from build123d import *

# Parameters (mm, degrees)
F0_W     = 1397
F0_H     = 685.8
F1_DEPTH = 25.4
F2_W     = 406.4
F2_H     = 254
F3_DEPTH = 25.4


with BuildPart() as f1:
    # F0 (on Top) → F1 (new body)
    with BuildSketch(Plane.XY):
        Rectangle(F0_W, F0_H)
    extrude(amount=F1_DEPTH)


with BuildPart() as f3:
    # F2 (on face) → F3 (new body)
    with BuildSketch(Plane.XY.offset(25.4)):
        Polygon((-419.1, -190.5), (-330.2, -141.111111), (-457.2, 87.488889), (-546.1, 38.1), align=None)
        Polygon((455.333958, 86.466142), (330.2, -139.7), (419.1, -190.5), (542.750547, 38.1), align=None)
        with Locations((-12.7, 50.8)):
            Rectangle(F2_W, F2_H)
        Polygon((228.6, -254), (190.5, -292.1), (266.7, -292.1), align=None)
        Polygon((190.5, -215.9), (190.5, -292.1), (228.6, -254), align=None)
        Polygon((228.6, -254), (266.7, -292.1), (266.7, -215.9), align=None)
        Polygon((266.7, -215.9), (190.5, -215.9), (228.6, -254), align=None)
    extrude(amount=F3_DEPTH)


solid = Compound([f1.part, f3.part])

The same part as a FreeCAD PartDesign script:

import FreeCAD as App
import Part
import Sketcher

V = App.Vector
Q = App.Units.Quantity


def add_polygon(sketch, points):
    """Adds a closed chain of lines whose ends are joined by coincident constraints."""
    first, n = sketch.GeometryCount, len(points)
    for a, b in zip(points, points[1:] + points[:1]):
        sketch.addGeometry(Part.LineSegment(App.Vector(*a, 0), App.Vector(*b, 0)), False)
    for i in range(n):
        sketch.addConstraint(Sketcher.Constraint("Coincident", first + i, 2, first + (i + 1) % n, 1))

doc = App.newDocument("Part")
body = doc.addObject("PartDesign::Body", "Body")

# Sketch on XY plane
sketch1 = body.newObject("Sketcher::SketchObject", "Sketch")
sketch1.AttachmentSupport = (doc.getObject("XY_Plane"), [""])
sketch1.MapMode = "FlatFace"
add_polygon(sketch1, [(-698.5, 342.9), (-698.5, -342.9), (698.5, -342.9), (698.5, 342.9)])  # lines 0-3
sketch1.addConstraint([
    Sketcher.Constraint("Vertical", 0),
    Sketcher.Constraint("Horizontal", 1),
    Sketcher.Constraint("Vertical", 2),
    Sketcher.Constraint("Horizontal", 3),
    Sketcher.Constraint("Symmetric", 0, 2, 2, 2, -1, 1),
    Sketcher.Constraint("DistanceX", 1, 1, 1, 2, Q("55 in")),
    Sketcher.Constraint("DistanceY", 0, 2, 0, 1, Q("27 in")),
])
pad1 = body.newObject("PartDesign::Pad", "Pad")
pad1.Profile = sketch1
pad1.Length = Q("1 in")
body2 = doc.addObject("PartDesign::Body", "Body001")
body2.AllowCompound = True

# Sketch on XY plane
sketch2 = body2.newObject("Sketcher::SketchObject", "Sketch001")
sketch2.AttachmentSupport = (doc.getObject("XY_Plane001"), [""])
sketch2.MapMode = "FlatFace"
sketch2.AttachmentOffset = App.Placement(V(0, 0, 1 * 25.4), App.Rotation())
add_polygon(sketch2, [(-419.1, -190.5), (-330.2, -141.111111), (-457.2, 87.488889), (-546.1, 38.1)])  # lines 0-3
add_polygon(sketch2, [(455.333958, 86.466142), (330.2, -139.7), (419.1, -190.5), (542.750547, 38.1)])  # lines 4-7
add_polygon(sketch2, [(-215.9, 177.8), (-215.9, -76.2), (190.5, -76.2), (190.5, 177.8)])  # lines 8-11
add_polygon(sketch2, [(190.5, -292.1), (266.7, -292.1), (266.7, -215.9), (190.5, -215.9)])  # lines 12-15
sketch2.addConstraint([
    Sketcher.Constraint("Vertical", 8),
    Sketcher.Constraint("Horizontal", 9),
    Sketcher.Constraint("Vertical", 10),
    Sketcher.Constraint("Horizontal", 11),
    Sketcher.Constraint("Horizontal", 12),
    Sketcher.Constraint("Vertical", 13),
    Sketcher.Constraint("Horizontal", 14),
    Sketcher.Constraint("Vertical", 15),
    Sketcher.Constraint("Symmetric", 3, 2, 5, 2, -2),
    Sketcher.Constraint("Perpendicular", 0, 1),
    Sketcher.Constraint("Perpendicular", 1, 2),
    Sketcher.Constraint("Perpendicular", 2, 3),
    Sketcher.Constraint("Perpendicular", 4, 7),
    Sketcher.Constraint("Horizontal", 2, 2, 6, 2),
    Sketcher.Constraint("Vertical", 10, 2, 14, 2),
    Sketcher.Constraint("Equal", 14, 13),
    Sketcher.Constraint("DistanceX", 9, 1, 9, 2, Q("16 in")),
    Sketcher.Constraint("DistanceX", 12, 1, 12, 2, Q("3 in")),
    Sketcher.Constraint("DistanceY", 8, 2, 8, 1, Q("10 in")),
    Sketcher.Constraint("DistanceX", 0, 2, -1, 1, Q("13 in")),
    Sketcher.Constraint("DistanceX", 1, 2, -1, 1, Q("18 in")),
    Sketcher.Constraint("DistanceX", -1, 1, 4, 2, Q("13 in")),
    Sketcher.Constraint("DistanceY", 8, 2, -1, 1, Q("3 in")),
    Sketcher.Constraint("DistanceY", 0, 2, 1, 2, Q("9 in")),
    Sketcher.Constraint("DistanceY", 3, 2, 4, 2, Q("2 in")),
    Sketcher.Constraint("DistanceX", 3, 2, 5, 2, Q("33 in")),
    Sketcher.Constraint("DistanceX", 3, 2, 8, 2, Q("8 in")),
    Sketcher.Constraint("DistanceY", 12, 2, 4, 2, Q("6 in")),
    Sketcher.Constraint("DistanceY", -1, 1, 2, 2, Q("1.5 in")),
    Sketcher.Constraint("Distance", 4, Q("258.475591 mm")),
    Sketcher.Constraint("Distance", 6, Q("259.898861 mm")),
])
pad2 = body2.newObject("PartDesign::Pad", "Pad001")
pad2.Profile = sketch2
pad2.Length = Q("1 in")

doc.recompute()
